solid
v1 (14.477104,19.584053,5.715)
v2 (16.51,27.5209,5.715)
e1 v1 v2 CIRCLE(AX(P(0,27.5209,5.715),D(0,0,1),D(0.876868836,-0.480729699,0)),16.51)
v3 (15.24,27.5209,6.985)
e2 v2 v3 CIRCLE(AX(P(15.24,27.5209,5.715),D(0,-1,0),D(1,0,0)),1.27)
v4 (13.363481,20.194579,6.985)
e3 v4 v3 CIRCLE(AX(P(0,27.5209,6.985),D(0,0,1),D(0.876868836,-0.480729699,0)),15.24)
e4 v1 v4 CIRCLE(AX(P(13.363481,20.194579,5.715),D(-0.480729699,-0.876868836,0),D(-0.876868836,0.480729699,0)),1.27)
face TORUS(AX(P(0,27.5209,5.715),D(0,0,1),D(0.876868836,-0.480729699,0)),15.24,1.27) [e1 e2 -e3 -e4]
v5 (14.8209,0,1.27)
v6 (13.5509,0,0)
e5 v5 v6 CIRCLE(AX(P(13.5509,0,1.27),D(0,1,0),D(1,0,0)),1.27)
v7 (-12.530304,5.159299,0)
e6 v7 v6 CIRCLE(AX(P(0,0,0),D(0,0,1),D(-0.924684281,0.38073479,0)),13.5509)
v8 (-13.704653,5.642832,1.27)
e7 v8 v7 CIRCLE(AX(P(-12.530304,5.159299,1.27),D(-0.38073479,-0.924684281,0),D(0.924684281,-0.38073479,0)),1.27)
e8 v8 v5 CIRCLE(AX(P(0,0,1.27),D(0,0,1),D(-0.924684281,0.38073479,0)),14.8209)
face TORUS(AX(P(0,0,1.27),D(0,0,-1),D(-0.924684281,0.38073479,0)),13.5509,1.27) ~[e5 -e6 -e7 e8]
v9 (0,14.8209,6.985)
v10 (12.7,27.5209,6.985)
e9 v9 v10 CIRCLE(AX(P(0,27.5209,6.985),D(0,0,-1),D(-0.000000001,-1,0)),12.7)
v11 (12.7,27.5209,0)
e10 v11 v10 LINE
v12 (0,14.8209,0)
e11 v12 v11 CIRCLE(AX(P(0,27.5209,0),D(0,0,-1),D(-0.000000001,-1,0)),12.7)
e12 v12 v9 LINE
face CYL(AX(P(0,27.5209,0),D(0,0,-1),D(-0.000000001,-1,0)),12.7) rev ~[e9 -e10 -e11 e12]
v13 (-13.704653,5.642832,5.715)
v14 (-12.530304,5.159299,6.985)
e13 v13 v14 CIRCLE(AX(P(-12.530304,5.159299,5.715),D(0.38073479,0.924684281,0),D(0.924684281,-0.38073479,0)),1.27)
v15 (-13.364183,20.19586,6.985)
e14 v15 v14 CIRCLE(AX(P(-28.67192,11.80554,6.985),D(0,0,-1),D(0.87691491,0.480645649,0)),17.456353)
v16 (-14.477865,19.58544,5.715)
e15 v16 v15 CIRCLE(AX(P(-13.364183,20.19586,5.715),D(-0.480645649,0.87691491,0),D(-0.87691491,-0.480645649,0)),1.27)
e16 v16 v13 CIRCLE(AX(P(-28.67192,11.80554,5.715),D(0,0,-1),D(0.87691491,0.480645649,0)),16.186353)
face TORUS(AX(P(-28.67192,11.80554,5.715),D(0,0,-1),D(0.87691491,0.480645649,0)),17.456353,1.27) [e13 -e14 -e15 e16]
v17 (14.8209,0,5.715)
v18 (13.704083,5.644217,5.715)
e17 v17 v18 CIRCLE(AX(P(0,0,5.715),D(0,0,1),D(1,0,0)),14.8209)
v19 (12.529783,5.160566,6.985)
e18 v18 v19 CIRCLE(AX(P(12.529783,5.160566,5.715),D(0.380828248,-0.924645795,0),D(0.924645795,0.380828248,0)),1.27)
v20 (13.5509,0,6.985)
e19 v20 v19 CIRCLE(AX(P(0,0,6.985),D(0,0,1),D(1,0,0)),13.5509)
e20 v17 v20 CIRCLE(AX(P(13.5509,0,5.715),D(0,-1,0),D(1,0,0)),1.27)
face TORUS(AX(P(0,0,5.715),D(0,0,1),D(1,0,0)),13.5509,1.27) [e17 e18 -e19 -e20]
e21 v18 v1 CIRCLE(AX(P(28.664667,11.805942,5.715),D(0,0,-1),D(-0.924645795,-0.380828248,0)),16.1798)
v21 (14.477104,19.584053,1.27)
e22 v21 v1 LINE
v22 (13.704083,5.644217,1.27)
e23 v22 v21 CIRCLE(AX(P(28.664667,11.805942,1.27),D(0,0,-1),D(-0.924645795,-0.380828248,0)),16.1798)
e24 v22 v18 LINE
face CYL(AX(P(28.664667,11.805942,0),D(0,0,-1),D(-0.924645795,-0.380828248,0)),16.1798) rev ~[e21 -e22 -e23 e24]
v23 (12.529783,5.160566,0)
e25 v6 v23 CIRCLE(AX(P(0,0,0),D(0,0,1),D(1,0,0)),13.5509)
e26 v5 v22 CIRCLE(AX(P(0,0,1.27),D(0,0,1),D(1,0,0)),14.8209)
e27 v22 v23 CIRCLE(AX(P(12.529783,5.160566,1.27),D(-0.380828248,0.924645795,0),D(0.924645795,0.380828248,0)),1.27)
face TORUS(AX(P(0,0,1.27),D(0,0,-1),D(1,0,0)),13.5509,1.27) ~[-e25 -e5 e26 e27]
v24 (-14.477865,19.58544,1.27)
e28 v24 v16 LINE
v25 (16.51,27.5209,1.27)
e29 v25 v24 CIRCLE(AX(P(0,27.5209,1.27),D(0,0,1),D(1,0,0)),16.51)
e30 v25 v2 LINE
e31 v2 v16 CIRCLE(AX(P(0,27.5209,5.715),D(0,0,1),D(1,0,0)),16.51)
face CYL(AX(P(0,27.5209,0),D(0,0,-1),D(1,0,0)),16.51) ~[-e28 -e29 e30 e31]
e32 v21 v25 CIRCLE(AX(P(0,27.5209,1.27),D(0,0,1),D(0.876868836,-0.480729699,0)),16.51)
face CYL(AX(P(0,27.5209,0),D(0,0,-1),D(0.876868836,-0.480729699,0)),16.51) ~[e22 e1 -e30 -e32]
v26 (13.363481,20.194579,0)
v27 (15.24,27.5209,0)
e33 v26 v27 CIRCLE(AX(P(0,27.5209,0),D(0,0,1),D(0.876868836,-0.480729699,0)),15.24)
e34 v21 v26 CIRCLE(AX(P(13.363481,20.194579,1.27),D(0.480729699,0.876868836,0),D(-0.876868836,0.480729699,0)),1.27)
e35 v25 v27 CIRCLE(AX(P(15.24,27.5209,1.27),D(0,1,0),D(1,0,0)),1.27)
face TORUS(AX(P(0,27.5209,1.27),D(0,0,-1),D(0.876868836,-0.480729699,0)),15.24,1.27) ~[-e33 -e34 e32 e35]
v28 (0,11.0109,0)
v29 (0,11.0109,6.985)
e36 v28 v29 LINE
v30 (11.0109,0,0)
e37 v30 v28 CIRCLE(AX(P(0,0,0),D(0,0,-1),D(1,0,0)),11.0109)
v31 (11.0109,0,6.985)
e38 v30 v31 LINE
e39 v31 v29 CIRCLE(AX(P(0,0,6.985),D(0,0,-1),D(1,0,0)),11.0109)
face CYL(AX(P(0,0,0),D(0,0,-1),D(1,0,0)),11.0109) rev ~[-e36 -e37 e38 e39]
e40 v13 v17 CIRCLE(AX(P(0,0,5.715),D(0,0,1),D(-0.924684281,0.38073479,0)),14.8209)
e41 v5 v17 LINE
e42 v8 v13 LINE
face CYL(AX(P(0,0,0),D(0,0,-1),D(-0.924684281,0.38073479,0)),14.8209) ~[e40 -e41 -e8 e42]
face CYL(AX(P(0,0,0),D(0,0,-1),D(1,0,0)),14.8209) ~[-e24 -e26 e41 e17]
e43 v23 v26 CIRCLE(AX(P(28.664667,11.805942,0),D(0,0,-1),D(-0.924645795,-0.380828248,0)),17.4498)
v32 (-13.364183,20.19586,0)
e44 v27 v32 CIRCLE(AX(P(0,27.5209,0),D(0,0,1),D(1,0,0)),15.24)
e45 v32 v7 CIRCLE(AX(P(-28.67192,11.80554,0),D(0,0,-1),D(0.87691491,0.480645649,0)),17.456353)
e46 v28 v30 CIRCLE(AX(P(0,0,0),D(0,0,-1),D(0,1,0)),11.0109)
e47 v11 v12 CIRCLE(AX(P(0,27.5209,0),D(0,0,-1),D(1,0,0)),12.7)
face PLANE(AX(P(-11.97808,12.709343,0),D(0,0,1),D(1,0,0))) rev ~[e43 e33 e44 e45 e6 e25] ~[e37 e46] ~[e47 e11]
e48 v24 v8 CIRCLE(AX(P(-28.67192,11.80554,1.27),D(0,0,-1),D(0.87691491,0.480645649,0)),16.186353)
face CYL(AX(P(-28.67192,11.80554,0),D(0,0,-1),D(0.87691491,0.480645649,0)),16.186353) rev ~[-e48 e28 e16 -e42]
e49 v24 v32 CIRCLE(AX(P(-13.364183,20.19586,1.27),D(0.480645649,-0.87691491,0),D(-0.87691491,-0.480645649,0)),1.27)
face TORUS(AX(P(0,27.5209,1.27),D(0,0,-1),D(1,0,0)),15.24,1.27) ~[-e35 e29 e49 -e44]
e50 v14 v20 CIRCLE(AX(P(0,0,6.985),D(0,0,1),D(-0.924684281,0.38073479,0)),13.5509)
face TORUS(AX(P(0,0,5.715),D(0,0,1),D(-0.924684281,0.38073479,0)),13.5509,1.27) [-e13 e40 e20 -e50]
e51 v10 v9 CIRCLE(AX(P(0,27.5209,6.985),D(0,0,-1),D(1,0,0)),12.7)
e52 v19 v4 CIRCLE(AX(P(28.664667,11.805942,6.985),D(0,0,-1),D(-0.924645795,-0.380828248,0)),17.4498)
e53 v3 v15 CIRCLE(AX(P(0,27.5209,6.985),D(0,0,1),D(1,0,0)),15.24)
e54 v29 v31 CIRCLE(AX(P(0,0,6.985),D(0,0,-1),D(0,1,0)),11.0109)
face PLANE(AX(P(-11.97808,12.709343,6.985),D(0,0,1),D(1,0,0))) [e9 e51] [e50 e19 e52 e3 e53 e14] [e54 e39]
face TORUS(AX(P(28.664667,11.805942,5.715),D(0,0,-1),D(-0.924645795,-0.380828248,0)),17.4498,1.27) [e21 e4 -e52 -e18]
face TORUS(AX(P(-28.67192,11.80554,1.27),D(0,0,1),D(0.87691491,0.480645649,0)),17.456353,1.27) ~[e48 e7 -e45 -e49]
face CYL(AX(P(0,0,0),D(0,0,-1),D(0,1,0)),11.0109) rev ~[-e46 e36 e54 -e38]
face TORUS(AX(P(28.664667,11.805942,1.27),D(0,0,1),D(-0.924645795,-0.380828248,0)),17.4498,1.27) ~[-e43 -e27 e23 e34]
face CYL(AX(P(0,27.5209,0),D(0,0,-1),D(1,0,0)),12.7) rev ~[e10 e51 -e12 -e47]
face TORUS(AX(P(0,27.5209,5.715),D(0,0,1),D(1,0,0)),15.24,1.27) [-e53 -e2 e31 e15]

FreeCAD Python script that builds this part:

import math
import FreeCAD as App
import Part
import Sketcher
from FreeCAD import Vector
Q = App.Units.Quantity


def edges_at(feature, points):
    """Names of the edges that pass closest to the given points."""
    edges = feature.Shape.Edges
    near = lambda p: min(range(len(edges)), key=lambda i: edges[i].distToShape(Part.Vertex(*p))[0])
    return sorted({f"Edge{near(p) + 1}" for p in points})

doc = App.newDocument("Part")
body = doc.addObject("PartDesign::Body", "Body")

# Sketch on XY plane
sketch1 = body.newObject("Sketcher::SketchObject", "Sketch")
sketch1.AttachmentSupport = (doc.getObject("XY_Plane"), [""])
sketch1.MapMode = "FlatFace"
sketch1.addGeometry(Part.ArcOfCircle(Part.Circle(Vector(28.664667, 11.805942, 0), Vector(0, 0, 1), 16.1798), math.radians(151.266929), math.radians(202.384996)), False)
sketch1.addGeometry(Part.ArcOfCircle(Part.Circle(Vector(0, 27.5209, 0), Vector(0, 0, 1), 16.51), math.radians(-28.733071), math.radians(0)), False)
sketch1.addGeometry(Part.ArcOfCircle(Part.Circle(Vector(0, 27.5209, 0), Vector(0, 0, 1), 16.51), math.radians(0), math.radians(208.727579)), False)
sketch1.addGeometry(Part.ArcOfCircle(Part.Circle(Vector(-28.67192, 11.80554, 0), Vector(0, 0, 1), 16.186353), math.radians(-22.379205), math.radians(28.727579)), False)
sketch1.addGeometry(Part.ArcOfCircle(Part.Circle(Vector(0, 0, 0), Vector(0, 0, 1), 14.8209), math.radians(157.620795), math.radians(360)), False)
sketch1.addGeometry(Part.ArcOfCircle(Part.Circle(Vector(0, 0, 0), Vector(0, 0, 1), 14.8209), math.radians(0), math.radians(22.384996)), False)
sketch1.addGeometry(Part.ArcOfCircle(Part.Circle(Vector(0, 0, 0), Vector(0, 0, 1), 11.0109), math.radians(90), math.radians(360)), False)
sketch1.addGeometry(Part.ArcOfCircle(Part.Circle(Vector(0, 0, 0), Vector(0, 0, 1), 11.0109), math.radians(0), math.radians(90)), False)
sketch1.addGeometry(Part.ArcOfCircle(Part.Circle(Vector(0, 27.5209, 0), Vector(0, 0, 1), 12.7), math.radians(-90), math.radians(0)), False)
sketch1.addGeometry(Part.ArcOfCircle(Part.Circle(Vector(0, 27.5209, 0), Vector(0, 0, 1), 12.7), math.radians(0), math.radians(270)), False)
sketch1.addConstraint(Sketcher.Constraint("Tangent", 0, 1, 1, 1))
sketch1.addConstraint(Sketcher.Constraint("Tangent", 1, 2, 2, 1))
sketch1.addConstraint(Sketcher.Constraint("Tangent", 2, 2, 3, 2))
sketch1.addConstraint(Sketcher.Constraint("Tangent", 3, 1, 4, 1))
sketch1.addConstraint(Sketcher.Constraint("Tangent", 4, 2, 5, 1))
sketch1.addConstraint(Sketcher.Constraint("Tangent", 5, 2, 0, 2))
sketch1.addConstraint(Sketcher.Constraint("Tangent", 6, 1, 7, 2))
sketch1.addConstraint(Sketcher.Constraint("Coincident", 7, 1, 6, 2))
sketch1.addConstraint(Sketcher.Constraint("Tangent", 8, 1, 9, 2))
sketch1.addConstraint(Sketcher.Constraint("Coincident", 9, 1, 8, 2))
sketch1.addConstraint(Sketcher.Constraint("Coincident", 4, 3, -1, 1))
sketch1.addConstraint(Sketcher.Constraint("Coincident", 6, 3, -1, 1))
sketch1.addConstraint(Sketcher.Constraint("Coincident", 8, 3, 1, 3))
sketch1.addConstraint(Sketcher.Constraint("Equal", 1, 2))
sketch1.addConstraint(Sketcher.Constraint("Equal", 4, 5))
sketch1.addConstraint(Sketcher.Constraint("PointOnObject", 1, 3, -2))
sketch1.addConstraint(Sketcher.Constraint("PointOnObject", 4, 2, -1))
sketch1.addConstraint(Sketcher.Constraint("PointOnObject", 6, 1, -2))
sketch1.addConstraint(Sketcher.Constraint("PointOnObject", 7, 1, -1))
sketch1.addConstraint(Sketcher.Constraint("PointOnObject", 8, 1, -2))
sketch1.addConstraint(Sketcher.Constraint("Horizontal", 9, 3, 1, 2))
sketch1.addConstraint(Sketcher.Constraint("Horizontal", 1, 2, 9, 1))
sketch1.addConstraint(Sketcher.Constraint("Radius", 8, Q("0.5 in")))
sketch1.addConstraint(Sketcher.Constraint("Radius", 1, Q("0.65 in")))
sketch1.addConstraint(Sketcher.Constraint("Radius", 0, Q("0.637 in")))
sketch1.addConstraint(Sketcher.Constraint("Radius", 4, Q("0.5835 in")))
sketch1.addConstraint(Sketcher.Constraint("Radius", 6, Q("0.4335 in")))
sketch1.addConstraint(Sketcher.Constraint("DistanceY", 6, 1, 8, 1, Q("0.15 in")))
sketch1.addConstraint(Sketcher.Constraint("Radius", 3, Q("16.186353 mm")))
pad1 = body.newObject("PartDesign::Pad", "Pad")
pad1.Profile = sketch1
pad1.Length = Q("0.275 in")
doc.recompute()

fillet = body.newObject("PartDesign::Fillet", "Fillet")
fillet.Base = (pad1, edges_at(pad1, [(-4.096, 43.515, 6.985), (-4.096, 43.515, 0)]))
fillet.Radius = Q("0.05 in")

doc.recompute()
